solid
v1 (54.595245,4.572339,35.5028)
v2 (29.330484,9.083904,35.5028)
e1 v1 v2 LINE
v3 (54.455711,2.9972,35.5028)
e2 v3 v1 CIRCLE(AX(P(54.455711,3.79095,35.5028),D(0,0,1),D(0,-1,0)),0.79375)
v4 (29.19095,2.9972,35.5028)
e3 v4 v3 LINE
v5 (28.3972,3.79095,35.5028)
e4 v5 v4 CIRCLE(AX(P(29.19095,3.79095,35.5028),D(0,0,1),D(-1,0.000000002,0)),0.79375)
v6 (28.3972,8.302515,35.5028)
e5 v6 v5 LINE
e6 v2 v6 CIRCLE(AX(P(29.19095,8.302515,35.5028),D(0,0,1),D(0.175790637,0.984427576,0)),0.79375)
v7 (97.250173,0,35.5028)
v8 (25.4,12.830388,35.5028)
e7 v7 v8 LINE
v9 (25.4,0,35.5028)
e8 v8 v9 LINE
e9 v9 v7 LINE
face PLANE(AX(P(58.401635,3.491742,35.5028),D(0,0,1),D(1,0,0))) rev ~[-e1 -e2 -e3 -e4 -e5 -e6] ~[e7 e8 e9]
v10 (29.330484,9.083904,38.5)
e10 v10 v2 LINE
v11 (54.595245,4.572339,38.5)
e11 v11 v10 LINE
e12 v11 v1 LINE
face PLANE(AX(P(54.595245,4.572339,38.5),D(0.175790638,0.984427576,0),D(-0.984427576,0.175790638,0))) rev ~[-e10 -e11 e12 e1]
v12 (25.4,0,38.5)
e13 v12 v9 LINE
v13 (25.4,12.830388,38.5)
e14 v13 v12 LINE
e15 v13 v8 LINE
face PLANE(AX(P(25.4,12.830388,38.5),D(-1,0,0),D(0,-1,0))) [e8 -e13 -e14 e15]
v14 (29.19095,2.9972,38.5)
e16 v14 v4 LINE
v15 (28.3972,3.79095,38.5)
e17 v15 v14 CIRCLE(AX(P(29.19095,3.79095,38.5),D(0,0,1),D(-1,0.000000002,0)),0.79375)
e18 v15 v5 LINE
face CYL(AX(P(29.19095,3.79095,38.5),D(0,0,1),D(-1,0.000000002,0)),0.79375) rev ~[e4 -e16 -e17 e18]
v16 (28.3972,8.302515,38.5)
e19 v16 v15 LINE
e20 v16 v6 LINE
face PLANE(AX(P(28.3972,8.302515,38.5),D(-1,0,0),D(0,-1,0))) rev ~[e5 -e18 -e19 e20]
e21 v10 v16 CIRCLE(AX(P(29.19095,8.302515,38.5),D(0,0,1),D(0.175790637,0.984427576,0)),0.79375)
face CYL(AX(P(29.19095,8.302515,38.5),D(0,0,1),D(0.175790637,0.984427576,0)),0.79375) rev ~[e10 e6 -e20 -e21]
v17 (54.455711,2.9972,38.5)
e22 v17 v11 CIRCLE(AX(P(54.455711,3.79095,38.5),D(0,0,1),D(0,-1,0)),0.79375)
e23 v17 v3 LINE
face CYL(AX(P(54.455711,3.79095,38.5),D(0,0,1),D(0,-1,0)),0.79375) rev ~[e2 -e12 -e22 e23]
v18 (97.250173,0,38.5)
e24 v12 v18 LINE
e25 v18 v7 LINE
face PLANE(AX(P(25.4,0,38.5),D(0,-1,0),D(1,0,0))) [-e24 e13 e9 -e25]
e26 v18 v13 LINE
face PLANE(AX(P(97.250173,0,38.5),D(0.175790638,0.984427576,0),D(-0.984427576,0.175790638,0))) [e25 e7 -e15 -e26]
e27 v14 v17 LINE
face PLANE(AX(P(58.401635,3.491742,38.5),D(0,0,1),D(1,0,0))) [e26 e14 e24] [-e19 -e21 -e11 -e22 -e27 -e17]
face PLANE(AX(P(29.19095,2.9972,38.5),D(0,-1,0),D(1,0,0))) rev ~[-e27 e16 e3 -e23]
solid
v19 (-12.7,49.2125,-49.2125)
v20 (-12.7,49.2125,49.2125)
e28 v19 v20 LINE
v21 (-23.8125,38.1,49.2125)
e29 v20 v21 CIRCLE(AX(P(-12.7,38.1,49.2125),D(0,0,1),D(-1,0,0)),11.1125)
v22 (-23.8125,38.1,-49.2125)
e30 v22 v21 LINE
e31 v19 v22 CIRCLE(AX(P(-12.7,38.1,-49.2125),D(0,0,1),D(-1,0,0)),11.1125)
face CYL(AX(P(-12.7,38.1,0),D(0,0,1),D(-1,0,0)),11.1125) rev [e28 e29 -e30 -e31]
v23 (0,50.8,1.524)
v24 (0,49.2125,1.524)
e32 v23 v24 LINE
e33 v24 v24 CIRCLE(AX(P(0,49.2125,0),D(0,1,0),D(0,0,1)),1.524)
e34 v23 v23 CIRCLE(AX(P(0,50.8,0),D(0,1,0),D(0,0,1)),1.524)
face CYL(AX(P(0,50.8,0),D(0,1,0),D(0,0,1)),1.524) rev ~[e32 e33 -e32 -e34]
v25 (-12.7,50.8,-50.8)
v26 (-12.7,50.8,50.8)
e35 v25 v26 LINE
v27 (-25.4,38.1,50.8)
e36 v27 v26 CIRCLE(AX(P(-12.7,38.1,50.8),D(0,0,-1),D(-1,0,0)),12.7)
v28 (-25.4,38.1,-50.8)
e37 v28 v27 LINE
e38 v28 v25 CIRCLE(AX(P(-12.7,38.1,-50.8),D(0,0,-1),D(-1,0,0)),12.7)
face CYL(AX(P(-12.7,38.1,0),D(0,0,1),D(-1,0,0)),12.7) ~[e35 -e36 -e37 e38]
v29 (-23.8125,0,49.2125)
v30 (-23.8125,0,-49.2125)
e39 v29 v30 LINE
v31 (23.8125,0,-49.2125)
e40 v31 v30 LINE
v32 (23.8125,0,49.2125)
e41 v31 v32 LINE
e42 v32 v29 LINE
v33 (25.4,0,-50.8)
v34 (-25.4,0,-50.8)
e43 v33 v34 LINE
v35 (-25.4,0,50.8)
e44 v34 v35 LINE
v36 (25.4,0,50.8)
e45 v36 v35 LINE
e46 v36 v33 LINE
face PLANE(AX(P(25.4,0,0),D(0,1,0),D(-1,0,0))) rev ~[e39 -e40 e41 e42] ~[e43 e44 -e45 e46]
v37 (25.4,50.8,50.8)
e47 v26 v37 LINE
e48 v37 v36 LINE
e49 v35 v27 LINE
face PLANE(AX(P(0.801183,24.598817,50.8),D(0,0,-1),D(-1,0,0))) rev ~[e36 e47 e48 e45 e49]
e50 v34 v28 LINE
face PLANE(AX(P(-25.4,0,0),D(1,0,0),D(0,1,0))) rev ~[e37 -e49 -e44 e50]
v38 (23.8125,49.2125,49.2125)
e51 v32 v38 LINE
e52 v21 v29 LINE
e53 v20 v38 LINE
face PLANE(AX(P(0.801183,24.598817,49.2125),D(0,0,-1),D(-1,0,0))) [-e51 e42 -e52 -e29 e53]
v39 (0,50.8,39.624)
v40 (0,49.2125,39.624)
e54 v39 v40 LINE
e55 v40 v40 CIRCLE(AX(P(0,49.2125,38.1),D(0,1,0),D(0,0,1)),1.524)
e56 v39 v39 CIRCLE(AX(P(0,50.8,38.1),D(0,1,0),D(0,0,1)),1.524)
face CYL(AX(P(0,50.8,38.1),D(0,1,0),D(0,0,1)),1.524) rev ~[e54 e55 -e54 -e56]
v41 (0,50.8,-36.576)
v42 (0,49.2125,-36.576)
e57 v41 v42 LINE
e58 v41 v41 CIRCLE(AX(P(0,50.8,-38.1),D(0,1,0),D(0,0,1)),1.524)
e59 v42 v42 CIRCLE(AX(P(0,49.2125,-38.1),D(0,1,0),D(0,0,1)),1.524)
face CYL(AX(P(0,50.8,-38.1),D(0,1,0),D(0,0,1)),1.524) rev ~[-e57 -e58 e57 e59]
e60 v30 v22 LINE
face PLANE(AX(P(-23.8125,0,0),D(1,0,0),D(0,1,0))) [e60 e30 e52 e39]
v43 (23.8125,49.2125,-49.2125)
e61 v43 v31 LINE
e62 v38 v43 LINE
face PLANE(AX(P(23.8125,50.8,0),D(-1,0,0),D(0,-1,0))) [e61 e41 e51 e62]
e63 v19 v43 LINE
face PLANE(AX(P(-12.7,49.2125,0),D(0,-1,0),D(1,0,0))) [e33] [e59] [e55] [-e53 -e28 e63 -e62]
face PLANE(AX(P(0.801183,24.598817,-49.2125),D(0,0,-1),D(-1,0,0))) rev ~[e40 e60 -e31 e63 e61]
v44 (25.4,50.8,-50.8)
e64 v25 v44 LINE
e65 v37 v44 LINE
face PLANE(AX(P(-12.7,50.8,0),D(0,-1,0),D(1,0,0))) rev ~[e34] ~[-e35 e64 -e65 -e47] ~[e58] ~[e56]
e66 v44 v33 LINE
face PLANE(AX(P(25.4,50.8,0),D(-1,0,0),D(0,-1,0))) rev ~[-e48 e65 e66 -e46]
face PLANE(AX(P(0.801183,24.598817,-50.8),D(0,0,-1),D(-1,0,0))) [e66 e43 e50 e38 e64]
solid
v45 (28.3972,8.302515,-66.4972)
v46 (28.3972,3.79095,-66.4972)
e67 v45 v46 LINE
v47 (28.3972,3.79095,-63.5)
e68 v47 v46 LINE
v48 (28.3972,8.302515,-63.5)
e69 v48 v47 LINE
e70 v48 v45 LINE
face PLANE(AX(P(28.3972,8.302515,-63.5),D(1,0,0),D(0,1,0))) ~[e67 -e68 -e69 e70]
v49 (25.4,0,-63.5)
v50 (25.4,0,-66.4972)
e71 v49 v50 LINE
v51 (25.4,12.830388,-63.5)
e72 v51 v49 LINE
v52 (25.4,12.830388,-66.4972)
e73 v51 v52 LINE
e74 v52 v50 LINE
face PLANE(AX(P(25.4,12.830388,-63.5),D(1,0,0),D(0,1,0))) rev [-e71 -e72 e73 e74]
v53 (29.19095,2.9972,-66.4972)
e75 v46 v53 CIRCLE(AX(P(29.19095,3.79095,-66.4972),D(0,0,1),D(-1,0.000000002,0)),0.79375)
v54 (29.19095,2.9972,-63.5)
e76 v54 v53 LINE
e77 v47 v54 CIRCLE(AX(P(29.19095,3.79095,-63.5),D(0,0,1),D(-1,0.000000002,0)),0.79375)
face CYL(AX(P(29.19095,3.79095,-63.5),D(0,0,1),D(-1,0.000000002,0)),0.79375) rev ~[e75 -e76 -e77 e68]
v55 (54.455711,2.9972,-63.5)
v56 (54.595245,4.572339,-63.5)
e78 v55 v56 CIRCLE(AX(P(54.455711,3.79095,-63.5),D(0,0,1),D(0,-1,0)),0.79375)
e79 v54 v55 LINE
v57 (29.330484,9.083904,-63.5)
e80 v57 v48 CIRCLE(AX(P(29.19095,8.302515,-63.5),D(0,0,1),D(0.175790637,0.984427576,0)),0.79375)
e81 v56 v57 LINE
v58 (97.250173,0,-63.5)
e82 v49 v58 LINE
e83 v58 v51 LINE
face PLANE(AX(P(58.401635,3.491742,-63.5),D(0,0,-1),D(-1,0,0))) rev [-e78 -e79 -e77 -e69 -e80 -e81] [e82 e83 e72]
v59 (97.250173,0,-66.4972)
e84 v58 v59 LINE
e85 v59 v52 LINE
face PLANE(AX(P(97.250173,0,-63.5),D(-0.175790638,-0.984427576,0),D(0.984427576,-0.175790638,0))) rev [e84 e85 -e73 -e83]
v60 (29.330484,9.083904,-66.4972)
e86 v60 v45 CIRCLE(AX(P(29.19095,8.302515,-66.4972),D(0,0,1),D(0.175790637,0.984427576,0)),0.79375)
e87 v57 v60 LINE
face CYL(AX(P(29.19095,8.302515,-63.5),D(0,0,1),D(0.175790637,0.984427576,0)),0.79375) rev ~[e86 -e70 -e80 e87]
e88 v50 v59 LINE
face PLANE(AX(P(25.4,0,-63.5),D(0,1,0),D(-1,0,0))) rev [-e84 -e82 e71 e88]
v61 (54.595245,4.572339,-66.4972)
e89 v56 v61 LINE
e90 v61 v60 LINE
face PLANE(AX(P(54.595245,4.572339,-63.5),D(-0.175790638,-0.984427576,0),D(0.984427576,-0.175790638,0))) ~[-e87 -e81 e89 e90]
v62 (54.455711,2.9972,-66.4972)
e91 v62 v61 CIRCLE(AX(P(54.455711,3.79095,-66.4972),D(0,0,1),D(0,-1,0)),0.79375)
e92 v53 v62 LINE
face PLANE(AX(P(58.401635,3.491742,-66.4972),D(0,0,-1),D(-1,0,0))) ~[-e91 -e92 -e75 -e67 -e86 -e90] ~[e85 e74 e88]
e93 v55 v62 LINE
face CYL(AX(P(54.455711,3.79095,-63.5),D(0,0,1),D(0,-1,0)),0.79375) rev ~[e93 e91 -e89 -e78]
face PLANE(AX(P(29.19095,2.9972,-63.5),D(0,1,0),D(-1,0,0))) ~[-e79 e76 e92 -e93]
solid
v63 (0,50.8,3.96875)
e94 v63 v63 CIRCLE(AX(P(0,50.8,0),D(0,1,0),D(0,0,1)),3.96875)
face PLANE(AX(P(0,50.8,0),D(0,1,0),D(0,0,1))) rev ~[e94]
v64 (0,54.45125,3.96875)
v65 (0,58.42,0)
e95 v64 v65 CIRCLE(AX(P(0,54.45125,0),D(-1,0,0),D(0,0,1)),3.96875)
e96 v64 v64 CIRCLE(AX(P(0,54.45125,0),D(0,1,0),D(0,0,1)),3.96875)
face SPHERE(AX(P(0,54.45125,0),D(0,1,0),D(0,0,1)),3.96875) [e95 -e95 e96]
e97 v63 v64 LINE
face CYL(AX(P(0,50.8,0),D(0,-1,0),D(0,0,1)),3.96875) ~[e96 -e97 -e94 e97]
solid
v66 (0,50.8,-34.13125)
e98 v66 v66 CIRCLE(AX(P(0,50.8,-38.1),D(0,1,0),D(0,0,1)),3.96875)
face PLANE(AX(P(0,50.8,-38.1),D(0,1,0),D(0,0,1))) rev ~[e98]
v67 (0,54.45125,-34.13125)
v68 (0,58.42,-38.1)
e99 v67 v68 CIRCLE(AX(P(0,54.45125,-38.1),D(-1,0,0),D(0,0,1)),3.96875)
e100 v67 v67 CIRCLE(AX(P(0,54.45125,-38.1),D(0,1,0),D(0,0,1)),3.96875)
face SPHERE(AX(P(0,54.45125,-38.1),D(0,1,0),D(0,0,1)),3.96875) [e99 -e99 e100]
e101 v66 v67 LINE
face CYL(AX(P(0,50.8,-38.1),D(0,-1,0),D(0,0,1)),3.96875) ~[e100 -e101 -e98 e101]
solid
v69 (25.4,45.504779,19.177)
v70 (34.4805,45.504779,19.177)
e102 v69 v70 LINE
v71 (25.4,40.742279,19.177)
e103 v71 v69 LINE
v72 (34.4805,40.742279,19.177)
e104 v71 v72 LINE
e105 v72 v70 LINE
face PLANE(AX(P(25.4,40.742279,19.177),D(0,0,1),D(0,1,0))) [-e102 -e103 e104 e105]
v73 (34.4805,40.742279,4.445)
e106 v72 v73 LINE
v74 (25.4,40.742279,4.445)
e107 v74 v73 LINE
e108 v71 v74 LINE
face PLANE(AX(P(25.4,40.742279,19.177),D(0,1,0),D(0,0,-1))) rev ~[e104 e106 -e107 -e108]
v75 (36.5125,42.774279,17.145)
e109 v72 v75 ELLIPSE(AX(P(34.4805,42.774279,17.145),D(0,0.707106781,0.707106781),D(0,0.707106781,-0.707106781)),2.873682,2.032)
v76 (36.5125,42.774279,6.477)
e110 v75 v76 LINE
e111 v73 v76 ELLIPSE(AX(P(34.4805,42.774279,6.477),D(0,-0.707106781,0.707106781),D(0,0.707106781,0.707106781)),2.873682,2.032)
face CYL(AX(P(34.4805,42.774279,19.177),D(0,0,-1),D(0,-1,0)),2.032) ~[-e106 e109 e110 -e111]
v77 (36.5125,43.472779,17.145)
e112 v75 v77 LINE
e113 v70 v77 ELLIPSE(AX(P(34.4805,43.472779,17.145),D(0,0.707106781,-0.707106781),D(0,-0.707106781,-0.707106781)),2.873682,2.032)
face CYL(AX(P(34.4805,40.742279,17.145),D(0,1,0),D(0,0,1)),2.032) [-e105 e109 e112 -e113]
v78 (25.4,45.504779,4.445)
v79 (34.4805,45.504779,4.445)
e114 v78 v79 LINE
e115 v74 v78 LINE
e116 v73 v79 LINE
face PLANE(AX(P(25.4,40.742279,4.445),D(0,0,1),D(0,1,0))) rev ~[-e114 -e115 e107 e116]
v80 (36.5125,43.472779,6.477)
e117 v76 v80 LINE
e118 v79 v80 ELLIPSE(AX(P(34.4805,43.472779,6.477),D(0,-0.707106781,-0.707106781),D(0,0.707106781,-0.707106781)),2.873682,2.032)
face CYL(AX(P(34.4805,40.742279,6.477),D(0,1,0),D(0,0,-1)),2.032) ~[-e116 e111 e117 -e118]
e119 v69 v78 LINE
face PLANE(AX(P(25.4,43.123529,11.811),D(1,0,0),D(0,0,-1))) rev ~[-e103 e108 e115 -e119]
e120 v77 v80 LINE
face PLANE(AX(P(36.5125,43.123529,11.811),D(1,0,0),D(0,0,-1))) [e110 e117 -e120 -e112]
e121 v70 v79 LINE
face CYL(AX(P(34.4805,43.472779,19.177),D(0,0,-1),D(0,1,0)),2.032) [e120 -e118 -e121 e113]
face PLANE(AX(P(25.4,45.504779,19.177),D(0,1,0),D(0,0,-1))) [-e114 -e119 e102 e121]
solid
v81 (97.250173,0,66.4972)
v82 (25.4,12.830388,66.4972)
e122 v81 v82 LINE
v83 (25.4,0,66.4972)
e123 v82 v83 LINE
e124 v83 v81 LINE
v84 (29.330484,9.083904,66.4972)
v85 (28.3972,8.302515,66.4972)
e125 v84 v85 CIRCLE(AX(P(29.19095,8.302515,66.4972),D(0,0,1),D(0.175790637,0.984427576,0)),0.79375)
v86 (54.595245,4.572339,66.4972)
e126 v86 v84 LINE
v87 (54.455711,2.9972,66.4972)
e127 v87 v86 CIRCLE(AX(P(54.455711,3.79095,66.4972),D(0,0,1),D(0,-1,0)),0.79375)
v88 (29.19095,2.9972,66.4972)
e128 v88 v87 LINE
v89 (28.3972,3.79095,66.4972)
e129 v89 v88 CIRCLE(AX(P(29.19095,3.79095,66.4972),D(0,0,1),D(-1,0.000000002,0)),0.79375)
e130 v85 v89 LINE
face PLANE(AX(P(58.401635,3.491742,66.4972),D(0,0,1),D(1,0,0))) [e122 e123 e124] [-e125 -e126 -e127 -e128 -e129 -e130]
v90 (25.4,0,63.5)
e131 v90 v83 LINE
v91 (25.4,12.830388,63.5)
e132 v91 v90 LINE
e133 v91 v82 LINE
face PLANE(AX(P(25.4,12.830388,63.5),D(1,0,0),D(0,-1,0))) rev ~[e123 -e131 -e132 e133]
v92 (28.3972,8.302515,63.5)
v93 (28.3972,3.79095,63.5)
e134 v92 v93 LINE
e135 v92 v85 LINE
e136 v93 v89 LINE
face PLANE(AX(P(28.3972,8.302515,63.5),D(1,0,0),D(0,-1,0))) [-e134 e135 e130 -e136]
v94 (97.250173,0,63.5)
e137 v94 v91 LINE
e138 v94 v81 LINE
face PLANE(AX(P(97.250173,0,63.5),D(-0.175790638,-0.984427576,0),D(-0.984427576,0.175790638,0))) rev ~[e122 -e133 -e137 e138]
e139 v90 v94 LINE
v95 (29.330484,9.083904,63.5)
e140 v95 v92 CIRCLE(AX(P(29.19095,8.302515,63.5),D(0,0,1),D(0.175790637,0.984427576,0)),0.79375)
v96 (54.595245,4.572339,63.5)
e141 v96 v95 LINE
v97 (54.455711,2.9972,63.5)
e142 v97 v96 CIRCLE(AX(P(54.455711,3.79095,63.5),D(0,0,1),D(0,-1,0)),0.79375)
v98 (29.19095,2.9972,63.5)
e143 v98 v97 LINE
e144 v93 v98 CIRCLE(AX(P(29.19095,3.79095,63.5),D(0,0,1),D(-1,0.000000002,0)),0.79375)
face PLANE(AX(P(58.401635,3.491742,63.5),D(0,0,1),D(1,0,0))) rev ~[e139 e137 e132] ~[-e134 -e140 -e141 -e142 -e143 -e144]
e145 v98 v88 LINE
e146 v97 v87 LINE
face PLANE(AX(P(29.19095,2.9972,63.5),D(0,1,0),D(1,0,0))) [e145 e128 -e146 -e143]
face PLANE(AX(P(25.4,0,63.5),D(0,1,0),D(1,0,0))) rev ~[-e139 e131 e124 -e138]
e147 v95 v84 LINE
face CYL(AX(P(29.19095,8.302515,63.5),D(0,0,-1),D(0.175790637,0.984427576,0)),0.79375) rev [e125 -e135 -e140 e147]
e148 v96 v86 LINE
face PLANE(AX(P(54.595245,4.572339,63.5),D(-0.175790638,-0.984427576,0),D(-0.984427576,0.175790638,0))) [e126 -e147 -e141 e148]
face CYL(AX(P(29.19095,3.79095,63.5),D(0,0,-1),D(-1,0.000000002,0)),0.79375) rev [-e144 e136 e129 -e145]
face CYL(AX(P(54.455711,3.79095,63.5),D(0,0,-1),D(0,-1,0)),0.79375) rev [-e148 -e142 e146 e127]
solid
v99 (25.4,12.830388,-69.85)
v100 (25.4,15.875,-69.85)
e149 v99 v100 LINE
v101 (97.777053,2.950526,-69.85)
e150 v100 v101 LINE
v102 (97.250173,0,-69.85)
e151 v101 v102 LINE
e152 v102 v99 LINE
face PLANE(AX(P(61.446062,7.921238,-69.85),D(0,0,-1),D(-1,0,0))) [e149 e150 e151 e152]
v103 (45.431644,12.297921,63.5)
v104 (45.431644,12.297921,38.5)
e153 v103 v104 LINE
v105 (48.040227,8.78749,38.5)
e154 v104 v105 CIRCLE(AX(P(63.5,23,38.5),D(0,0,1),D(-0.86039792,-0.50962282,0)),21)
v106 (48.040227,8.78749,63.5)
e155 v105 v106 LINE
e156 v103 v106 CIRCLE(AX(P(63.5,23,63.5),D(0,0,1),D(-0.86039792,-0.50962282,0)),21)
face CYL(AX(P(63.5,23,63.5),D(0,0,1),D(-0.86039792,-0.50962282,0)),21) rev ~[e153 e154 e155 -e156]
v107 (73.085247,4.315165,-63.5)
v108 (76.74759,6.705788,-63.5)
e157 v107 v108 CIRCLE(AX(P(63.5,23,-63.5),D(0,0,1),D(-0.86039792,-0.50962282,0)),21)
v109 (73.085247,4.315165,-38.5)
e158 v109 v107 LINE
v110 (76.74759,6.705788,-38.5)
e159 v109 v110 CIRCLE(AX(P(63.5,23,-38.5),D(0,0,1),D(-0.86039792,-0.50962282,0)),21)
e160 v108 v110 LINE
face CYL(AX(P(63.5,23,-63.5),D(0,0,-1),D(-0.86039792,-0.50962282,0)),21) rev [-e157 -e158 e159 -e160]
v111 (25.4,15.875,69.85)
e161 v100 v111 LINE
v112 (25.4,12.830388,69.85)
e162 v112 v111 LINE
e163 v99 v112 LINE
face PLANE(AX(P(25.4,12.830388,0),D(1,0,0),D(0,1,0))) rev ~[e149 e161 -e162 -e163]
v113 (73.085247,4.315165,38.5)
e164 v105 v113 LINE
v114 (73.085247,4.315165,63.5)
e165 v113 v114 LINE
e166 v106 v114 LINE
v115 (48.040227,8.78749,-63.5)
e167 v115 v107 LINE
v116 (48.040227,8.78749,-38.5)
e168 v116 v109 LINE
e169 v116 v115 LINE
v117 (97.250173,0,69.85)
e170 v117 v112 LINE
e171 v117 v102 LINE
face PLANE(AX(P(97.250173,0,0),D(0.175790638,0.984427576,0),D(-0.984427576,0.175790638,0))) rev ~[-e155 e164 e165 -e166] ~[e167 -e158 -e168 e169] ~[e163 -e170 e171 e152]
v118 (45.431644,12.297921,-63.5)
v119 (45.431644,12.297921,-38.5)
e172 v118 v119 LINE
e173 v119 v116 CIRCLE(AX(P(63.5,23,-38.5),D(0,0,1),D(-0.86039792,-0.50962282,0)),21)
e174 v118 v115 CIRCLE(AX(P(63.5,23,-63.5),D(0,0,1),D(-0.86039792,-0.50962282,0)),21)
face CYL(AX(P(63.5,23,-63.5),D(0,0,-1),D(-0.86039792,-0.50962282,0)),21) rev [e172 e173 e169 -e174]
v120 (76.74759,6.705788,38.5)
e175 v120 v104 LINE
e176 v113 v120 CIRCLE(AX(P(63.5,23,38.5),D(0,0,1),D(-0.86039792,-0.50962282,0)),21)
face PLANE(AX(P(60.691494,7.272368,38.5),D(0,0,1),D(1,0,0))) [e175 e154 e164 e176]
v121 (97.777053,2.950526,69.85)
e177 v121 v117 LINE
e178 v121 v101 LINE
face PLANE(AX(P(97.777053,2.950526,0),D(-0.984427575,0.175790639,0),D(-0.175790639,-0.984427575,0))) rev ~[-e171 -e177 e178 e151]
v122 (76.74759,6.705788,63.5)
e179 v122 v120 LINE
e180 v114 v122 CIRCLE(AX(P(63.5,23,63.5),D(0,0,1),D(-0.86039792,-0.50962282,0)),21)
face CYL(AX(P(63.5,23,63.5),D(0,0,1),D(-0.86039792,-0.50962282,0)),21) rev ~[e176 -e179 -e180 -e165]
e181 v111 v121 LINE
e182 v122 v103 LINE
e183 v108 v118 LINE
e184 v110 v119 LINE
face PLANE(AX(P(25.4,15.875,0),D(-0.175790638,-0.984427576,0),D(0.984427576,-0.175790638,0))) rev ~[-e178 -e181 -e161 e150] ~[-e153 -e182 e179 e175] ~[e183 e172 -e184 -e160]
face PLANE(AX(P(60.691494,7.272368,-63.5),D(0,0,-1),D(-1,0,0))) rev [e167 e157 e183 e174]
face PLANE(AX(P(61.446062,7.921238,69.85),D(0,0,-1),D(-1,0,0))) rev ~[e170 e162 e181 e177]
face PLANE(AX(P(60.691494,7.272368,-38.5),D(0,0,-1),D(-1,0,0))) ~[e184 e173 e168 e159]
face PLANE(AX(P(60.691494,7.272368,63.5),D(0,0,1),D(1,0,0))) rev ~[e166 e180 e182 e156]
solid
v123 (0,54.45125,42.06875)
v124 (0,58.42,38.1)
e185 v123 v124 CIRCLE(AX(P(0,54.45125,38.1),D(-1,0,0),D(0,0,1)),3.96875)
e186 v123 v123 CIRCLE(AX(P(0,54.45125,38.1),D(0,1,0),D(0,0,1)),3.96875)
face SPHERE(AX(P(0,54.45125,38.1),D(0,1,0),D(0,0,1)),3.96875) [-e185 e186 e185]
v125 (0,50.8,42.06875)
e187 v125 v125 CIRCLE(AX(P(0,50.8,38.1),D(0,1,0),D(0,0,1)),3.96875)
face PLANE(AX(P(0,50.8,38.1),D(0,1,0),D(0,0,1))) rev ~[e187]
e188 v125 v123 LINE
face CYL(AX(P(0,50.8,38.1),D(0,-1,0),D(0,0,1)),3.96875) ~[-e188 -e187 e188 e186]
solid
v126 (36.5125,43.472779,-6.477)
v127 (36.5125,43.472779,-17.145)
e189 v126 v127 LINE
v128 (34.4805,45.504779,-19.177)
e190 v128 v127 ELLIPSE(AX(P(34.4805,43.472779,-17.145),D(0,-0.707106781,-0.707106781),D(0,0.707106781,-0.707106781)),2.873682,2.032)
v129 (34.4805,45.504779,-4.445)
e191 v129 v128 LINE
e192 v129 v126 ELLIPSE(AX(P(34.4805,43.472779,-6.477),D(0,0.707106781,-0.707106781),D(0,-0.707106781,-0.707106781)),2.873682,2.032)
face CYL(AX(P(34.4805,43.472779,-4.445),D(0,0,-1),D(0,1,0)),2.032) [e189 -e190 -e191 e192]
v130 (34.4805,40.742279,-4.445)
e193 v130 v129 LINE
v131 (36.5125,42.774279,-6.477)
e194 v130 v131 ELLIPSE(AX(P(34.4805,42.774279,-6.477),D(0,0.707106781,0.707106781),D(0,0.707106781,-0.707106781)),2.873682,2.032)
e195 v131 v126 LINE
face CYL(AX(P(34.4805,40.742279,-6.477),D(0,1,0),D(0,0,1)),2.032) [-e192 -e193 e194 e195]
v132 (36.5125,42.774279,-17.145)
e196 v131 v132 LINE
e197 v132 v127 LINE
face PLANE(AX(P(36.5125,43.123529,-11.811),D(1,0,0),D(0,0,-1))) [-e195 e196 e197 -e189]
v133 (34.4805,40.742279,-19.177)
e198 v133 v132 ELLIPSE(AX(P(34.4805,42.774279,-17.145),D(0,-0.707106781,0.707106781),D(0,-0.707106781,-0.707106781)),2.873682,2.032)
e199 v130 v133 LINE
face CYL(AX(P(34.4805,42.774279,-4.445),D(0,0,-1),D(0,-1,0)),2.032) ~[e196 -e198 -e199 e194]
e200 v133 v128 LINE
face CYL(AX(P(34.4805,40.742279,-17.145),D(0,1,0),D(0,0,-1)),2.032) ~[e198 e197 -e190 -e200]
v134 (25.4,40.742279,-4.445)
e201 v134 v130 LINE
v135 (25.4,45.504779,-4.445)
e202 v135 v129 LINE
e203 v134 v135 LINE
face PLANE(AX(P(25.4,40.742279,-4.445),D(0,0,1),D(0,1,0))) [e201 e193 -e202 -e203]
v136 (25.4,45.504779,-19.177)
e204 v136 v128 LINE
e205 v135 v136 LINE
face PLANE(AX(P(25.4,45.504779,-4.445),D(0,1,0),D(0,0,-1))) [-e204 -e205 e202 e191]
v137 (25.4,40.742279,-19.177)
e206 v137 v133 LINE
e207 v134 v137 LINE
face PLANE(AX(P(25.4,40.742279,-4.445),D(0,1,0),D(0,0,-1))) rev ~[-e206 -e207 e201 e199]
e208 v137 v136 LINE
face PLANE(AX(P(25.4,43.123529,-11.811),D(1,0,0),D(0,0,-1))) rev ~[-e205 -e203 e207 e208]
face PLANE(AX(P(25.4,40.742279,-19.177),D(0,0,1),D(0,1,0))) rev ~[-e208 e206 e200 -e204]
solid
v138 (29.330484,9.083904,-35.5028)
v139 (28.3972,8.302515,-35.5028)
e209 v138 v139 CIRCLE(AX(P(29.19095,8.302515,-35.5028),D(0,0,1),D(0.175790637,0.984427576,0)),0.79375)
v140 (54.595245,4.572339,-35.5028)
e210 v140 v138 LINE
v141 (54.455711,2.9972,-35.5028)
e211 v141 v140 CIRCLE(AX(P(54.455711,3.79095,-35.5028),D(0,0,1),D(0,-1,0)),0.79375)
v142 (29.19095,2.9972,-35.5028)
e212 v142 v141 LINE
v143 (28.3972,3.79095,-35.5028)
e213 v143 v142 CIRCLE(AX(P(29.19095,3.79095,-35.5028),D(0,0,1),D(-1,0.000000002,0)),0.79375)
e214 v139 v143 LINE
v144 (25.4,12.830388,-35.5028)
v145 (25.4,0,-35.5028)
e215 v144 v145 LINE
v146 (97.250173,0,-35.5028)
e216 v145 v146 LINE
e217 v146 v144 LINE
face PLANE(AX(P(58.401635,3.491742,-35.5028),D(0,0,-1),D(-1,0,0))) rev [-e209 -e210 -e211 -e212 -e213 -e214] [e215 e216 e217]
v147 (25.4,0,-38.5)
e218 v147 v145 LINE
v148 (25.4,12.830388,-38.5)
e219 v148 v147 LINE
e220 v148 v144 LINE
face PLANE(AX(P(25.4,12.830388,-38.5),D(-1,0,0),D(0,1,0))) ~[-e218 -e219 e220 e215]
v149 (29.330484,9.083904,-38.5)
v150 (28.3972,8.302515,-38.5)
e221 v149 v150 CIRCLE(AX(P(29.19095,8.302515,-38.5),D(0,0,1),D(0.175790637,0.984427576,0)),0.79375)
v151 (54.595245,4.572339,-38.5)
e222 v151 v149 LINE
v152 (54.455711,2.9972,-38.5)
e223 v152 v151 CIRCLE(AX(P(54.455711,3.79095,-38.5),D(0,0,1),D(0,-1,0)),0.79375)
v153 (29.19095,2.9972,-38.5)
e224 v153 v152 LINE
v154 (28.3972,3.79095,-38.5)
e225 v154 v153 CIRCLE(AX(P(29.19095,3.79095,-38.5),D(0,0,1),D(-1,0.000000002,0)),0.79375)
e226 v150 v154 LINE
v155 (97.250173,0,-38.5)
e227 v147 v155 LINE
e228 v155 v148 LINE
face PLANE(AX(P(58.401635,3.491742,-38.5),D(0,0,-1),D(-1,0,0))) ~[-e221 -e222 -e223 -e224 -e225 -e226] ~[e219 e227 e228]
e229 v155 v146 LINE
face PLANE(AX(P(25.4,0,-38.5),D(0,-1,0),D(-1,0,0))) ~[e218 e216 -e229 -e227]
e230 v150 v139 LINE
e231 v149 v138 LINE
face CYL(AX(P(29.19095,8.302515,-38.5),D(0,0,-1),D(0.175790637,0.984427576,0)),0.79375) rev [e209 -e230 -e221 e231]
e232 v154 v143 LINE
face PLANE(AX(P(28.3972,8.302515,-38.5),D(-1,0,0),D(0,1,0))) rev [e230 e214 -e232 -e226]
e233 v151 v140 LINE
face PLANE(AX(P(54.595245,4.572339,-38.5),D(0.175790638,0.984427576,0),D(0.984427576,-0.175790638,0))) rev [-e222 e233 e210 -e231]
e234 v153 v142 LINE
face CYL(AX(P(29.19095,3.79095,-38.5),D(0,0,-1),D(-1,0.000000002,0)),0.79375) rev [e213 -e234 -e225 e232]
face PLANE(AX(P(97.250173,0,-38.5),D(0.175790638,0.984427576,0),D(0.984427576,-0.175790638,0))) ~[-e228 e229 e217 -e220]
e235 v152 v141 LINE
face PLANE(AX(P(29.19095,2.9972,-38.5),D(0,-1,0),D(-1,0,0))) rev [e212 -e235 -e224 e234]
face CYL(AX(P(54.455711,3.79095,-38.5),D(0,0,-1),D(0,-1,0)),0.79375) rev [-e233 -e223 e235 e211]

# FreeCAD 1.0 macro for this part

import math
import FreeCAD as App
import Part
import Sketcher
Q = App.Units.Quantity


def edges_at(feature, points):
    """Names of the edges that pass closest to the given points."""
    edges = feature.Shape.Edges
    near = lambda p: min(range(len(edges)), key=lambda i: edges[i].distToShape(Part.Vertex(*p))[0])
    return sorted({f"Edge{near(p) + 1}" for p in points})


def faces_at(feature, points):
    """Names of the faces that lie closest to the given points."""
    faces = feature.Shape.Faces
    near = lambda p: min(range(len(faces)), key=lambda i: faces[i].distToShape(Part.Vertex(*p))[0])
    return sorted({f"Face{near(p) + 1}" for p in points})

doc = App.newDocument("Part")
body = doc.addObject("PartDesign::Body", "Body")

sketch1 = doc.addObject("Sketcher::SketchObject", "Sketch")
body.addObject(sketch1)
sketch1.AttachmentSupport = (doc.XY_Plane, [""])
sketch1.MapMode = "FlatFace"
sketch1.addGeometry(Part.LineSegment(App.Vector(25, 51, 0), App.Vector(-13, 51, 0)), False)
sketch1.addGeometry(Part.ArcOfCircle(Part.Circle(App.Vector(-13, 38, 0), App.Vector(0, 0, 1), 13), math.radians(90), math.radians(180)), False)
sketch1.addGeometry(Part.LineSegment(App.Vector(-25, 38, 0), App.Vector(-25, 0, 0)), False)
sketch1.addGeometry(Part.LineSegment(App.Vector(-25, 0, 0), App.Vector(25, 0, 0)), False)
sketch1.addGeometry(Part.LineSegment(App.Vector(25, 0, 0), App.Vector(25, 51, 0)), False)
sketch1.addConstraint(Sketcher.Constraint("Tangent", 0, 2, 1, 1))
sketch1.addConstraint(Sketcher.Constraint("Tangent", 1, 2, 2, 1))
sketch1.addConstraint(Sketcher.Constraint("Coincident", 2, 2, 3, 1))
sketch1.addConstraint(Sketcher.Constraint("Coincident", 3, 2, 4, 1))
sketch1.addConstraint(Sketcher.Constraint("Coincident", 4, 2, 0, 1))
sketch1.addConstraint(Sketcher.Constraint("Horizontal", 0))
sketch1.addConstraint(Sketcher.Constraint("Vertical", 2))
sketch1.addConstraint(Sketcher.Constraint("Horizontal", 3))
sketch1.addConstraint(Sketcher.Constraint("Vertical", 4))
sketch1.addConstraint(Sketcher.Constraint("Symmetric", 2, 2, 3, 2, -1, 1))
sketch1.addConstraint(Sketcher.Constraint("Equal", 0, 2))
sketch1.addConstraint(Sketcher.Constraint("Radius", 1, Q("0.5 in")))
sketch1.addConstraint(Sketcher.Constraint("DistanceX", 3, 1, 3, 2, Q("2 in")))
pad1 = doc.addObject("PartDesign::Pad", "Pad")
body.addObject(pad1)
pad1.Profile = sketch1
pad1.Length = Q("4 in")
pad1.Midplane = True
doc.recompute()

thickness = doc.addObject("PartDesign::Thickness", "Thickness")
body.addObject(thickness)
thickness.Base = (pad1, faces_at(pad1, [(0, 0, 0)]))
thickness.Value = Q("0.0625 in")
thickness.Reversed = True
thickness.Join = "Intersection"

sketch2 = doc.addObject("Sketcher::SketchObject", "Sketch001")
body.addObject(sketch2)
sketch2.AttachmentSupport = (doc.XZ_Plane, [""])
sketch2.MapMode = "FlatFace"
sketch2.AttachmentOffset = App.Placement(App.Vector(0, 0, -2 * 25.4), App.Rotation())
sketch2.addGeometry(Part.Circle(App.Vector(0, 0, 0), App.Vector(0, 0, 1), 1.5), False)
sketch2.addConstraint(Sketcher.Constraint("Coincident", 0, 3, -1, 1))
sketch2.addConstraint(Sketcher.Constraint("Diameter", 0, Q("0.12 in")))
pocket1 = doc.addObject("PartDesign::Pocket", "Pocket")
body.addObject(pocket1)
pocket1.Profile = sketch2
pocket1.Type = "UpToFirst"
pocket1.Reversed = True

sketch3 = doc.addObject("Sketcher::SketchObject", "Sketch002")
body.addObject(sketch3)
sketch3.AttachmentSupport = (doc.XZ_Plane, [""])
sketch3.MapMode = "FlatFace"
sketch3.AttachmentOffset = App.Placement(App.Vector(0, 0, -2 * 25.4), App.Rotation())
sketch3.addGeometry(Part.Circle(App.Vector(0, -38.1, 0), App.Vector(0, 0, 1), 1.5), False)
sketch3.addConstraint(Sketcher.Constraint("PointOnObject", 0, 3, -2))
sketch3.addConstraint(Sketcher.Constraint("Diameter", 0, Q("0.12 in")))
sketch3.addConstraint(Sketcher.Constraint("DistanceY", 0, 3, -1, 1, Q("1.5 in")))
pocket2 = doc.addObject("PartDesign::Pocket", "Pocket001")
body.addObject(pocket2)
pocket2.Profile = sketch3
pocket2.Type = "UpToFirst"
pocket2.Reversed = True

sketch4 = doc.addObject("Sketcher::SketchObject", "Sketch003")
body.addObject(sketch4)
sketch4.AttachmentSupport = (doc.XZ_Plane, [""])
sketch4.MapMode = "FlatFace"
sketch4.AttachmentOffset = App.Placement(App.Vector(0, 0, -2 * 25.4), App.Rotation())
sketch4.addGeometry(Part.Circle(App.Vector(0, 38.1, 0), App.Vector(0, 0, 1), 1.5), False)
sketch4.addConstraint(Sketcher.Constraint("PointOnObject", 0, 3, -2))
sketch4.addConstraint(Sketcher.Constraint("Diameter", 0, Q("0.12 in")))
sketch4.addConstraint(Sketcher.Constraint("DistanceY", -1, 1, 0, 3, Q("1.5 in")))
pocket3 = doc.addObject("PartDesign::Pocket", "Pocket002")
body.addObject(pocket3)
pocket3.Profile = sketch4
pocket3.Type = "UpToFirst"
pocket3.Reversed = True
body2 = doc.addObject("PartDesign::Body", "Body001")

sketch5 = doc.addObject("Sketcher::SketchObject", "Sketch004")
body2.addObject(sketch5)
sketch5.AttachmentSupport = (doc.getObject("XY_Plane001"), [""])
sketch5.MapMode = "FlatFace"
sketch5.addGeometry(Part.LineSegment(App.Vector(97.777053, 2.950526, 0), App.Vector(25.4, 15.875, 0)), False)
sketch5.addGeometry(Part.LineSegment(App.Vector(25.4, 15.875, 0), App.Vector(25.4, 12.830388, 0)), False)
sketch5.addGeometry(Part.LineSegment(App.Vector(25.4, 12.830388, 0), App.Vector(97.250173, 0, 0)), False)
sketch5.addGeometry(Part.LineSegment(App.Vector(97.250173, 0, 0), App.Vector(97.777053, 2.950526, 0)), False)
sketch5.addConstraint(Sketcher.Constraint("Coincident", 0, 2, 1, 1))
sketch5.addConstraint(Sketcher.Constraint("Coincident", 1, 2, 2, 1))
sketch5.addConstraint(Sketcher.Constraint("Coincident", 2, 2, 3, 1))
sketch5.addConstraint(Sketcher.Constraint("Coincident", 3, 2, 0, 1))
sketch5.addConstraint(Sketcher.Constraint("Vertical", 1))
sketch5.addConstraint(Sketcher.Constraint("PointOnObject", 2, 2, -1))
sketch5.addConstraint(Sketcher.Constraint("DistanceX", -1, 1, 0, 2, Q("1 in")))
sketch5.addConstraint(Sketcher.Constraint("Distance", 3, Q("0.118 in")))
sketch5.addConstraint(Sketcher.Constraint("DistanceY", -1, 1, 0, 2, Q("0.625 in")))
sketch5.addConstraint(Sketcher.Constraint("DistanceY", 1, 2, 1, 1, 3.044612))
sketch5.addConstraint(Sketcher.Constraint("DistanceX", 2, 2, 3, 2, 0.52688))
sketch5.addConstraint(Sketcher.Constraint("Distance", 0, 73.521968))
pad2 = doc.addObject("PartDesign::Pad", "Pad001")
body2.addObject(pad2)
pad2.Profile = sketch5
pad2.Length = Q("5.5 in")
pad2.Midplane = True

sketch6 = doc.addObject("Sketcher::SketchObject", "Sketch005")
body2.addObject(sketch6)
sketch6.AttachmentSupport = (doc.getObject("XY_Plane001"), [""])
sketch6.MapMode = "FlatFace"
sketch6.AttachmentOffset = App.Placement(App.Vector(0, 0, 2.5 * 25.4), App.Rotation())
sketch6.addGeometry(Part.LineSegment(App.Vector(77, 7, 0), App.Vector(45, 12, 0)), False)
sketch6.addGeometry(Part.ArcOfCircle(Part.Circle(App.Vector(64, 23, 0), App.Vector(0, 0, 1), 21), math.radians(-149), math.radians(-51)), False)
sketch6.addConstraint(Sketcher.Constraint("Coincident", 0, 1, 1, 2))
sketch6.addConstraint(Sketcher.Constraint("Coincident", 1, 1, 0, 2))
sketch6.addConstraint(Sketcher.Constraint("DistanceX", -1, 1, 1, 3, Q("2.5 in")))
sketch6.addConstraint(Sketcher.Constraint("Radius", 1, 21.0))
sketch6.addConstraint(Sketcher.Constraint("DistanceY", -1, 1, 1, 3, 23.0))
sketch6.addConstraint(Sketcher.Constraint("DistanceX", -1, 1, 0, 1, 76.74759))
sketch6.addConstraint(Sketcher.Constraint("DistanceY", -1, 1, 1, 1, 12.297921))
pocket4 = doc.addObject("PartDesign::Pocket", "Pocket003")
body2.addObject(pocket4)
pocket4.Profile = sketch6
pocket4.Length = 25
doc.recompute()

mirrored = doc.addObject("PartDesign::Mirrored", "Mirrored")
body2.addObject(mirrored)
mirrored.Originals = [pocket4]
mirrored.MirrorPlane = (doc.getObject("XY_Plane001"), [""])
body2.Tip = mirrored
body3 = doc.addObject("PartDesign::Body", "Body002")

sketch7 = doc.addObject("Sketcher::SketchObject", "Sketch006")
body3.addObject(sketch7)
sketch7.AttachmentSupport = (doc.getObject("YZ_Plane002"), [""])
sketch7.MapMode = "FlatFace"
sketch7.AttachmentOffset = App.Placement(App.Vector(0, 0, 1 * 25.4), App.Rotation())
sketch7.addGeometry(Part.LineSegment(App.Vector(45.5, 19.2, 0), App.Vector(40.7, 19.2, 0)), False)
sketch7.addGeometry(Part.LineSegment(App.Vector(40.7, 19.2, 0), App.Vector(40.7, 4.4, 0)), False)
sketch7.addGeometry(Part.LineSegment(App.Vector(40.7, 4.4, 0), App.Vector(45.5, 4.4, 0)), False)
sketch7.addGeometry(Part.LineSegment(App.Vector(45.5, 4.4, 0), App.Vector(45.5, 19.2, 0)), False)
sketch7.addConstraint(Sketcher.Constraint("Coincident", 0, 2, 1, 1))
sketch7.addConstraint(Sketcher.Constraint("Coincident", 1, 2, 2, 1))
sketch7.addConstraint(Sketcher.Constraint("Coincident", 2, 2, 3, 1))
sketch7.addConstraint(Sketcher.Constraint("Coincident", 3, 2, 0, 1))
sketch7.addConstraint(Sketcher.Constraint("Horizontal", 0))
sketch7.addConstraint(Sketcher.Constraint("Vertical", 1))
sketch7.addConstraint(Sketcher.Constraint("Horizontal", 2))
sketch7.addConstraint(Sketcher.Constraint("Vertical", 3))
sketch7.addConstraint(Sketcher.Constraint("DistanceY", 1, 2, 1, 1, Q("0.58 in")))
sketch7.addConstraint(Sketcher.Constraint("DistanceX", 0, 2, 0, 1, Q("0.1875 in")))
sketch7.addConstraint(Sketcher.Constraint("DistanceY", -1, 1, 0, 2, Q("0.755 in")))
sketch7.addConstraint(Sketcher.Constraint("DistanceX", -1, 1, 0, 2, 40.742279))
pad3 = doc.addObject("PartDesign::Pad", "Pad002")
body3.addObject(pad3)
pad3.Profile = sketch7
pad3.Length = Q("0.4375 in")
doc.recompute()

fillet = doc.addObject("PartDesign::Fillet", "Fillet")
body3.addObject(fillet)
fillet.Base = (pad3, edges_at(pad3, [
    (36.513, 43.124, 4.445),
    (36.513, 45.505, 11.811),
    (36.513, 43.124, 19.177),
    (36.513, 40.742, 11.811),
]))
fillet.Radius = Q("0.08 in")
body4 = doc.addObject("PartDesign::Body", "Body003")

sketch8 = doc.addObject("Sketcher::SketchObject", "Sketch007")
body4.addObject(sketch8)
sketch8.AttachmentSupport = (doc.getObject("YZ_Plane003"), [""])
sketch8.MapMode = "FlatFace"
sketch8.AttachmentOffset = App.Placement(App.Vector(0, 0, 1 * 25.4), App.Rotation())
sketch8.addGeometry(Part.LineSegment(App.Vector(45.5, -4.4, 0), App.Vector(40.7, -4.4, 0)), False)
sketch8.addGeometry(Part.LineSegment(App.Vector(40.7, -4.4, 0), App.Vector(40.7, -19.2, 0)), False)
sketch8.addGeometry(Part.LineSegment(App.Vector(40.7, -19.2, 0), App.Vector(45.5, -19.2, 0)), False)
sketch8.addGeometry(Part.LineSegment(App.Vector(45.5, -19.2, 0), App.Vector(45.5, -4.4, 0)), False)
sketch8.addConstraint(Sketcher.Constraint("Coincident", 0, 2, 1, 1))
sketch8.addConstraint(Sketcher.Constraint("Coincident", 1, 2, 2, 1))
sketch8.addConstraint(Sketcher.Constraint("Coincident", 2, 2, 3, 1))
sketch8.addConstraint(Sketcher.Constraint("Coincident", 3, 2, 0, 1))
sketch8.addConstraint(Sketcher.Constraint("Horizontal", 0))
sketch8.addConstraint(Sketcher.Constraint("Vertical", 1))
sketch8.addConstraint(Sketcher.Constraint("Horizontal", 2))
sketch8.addConstraint(Sketcher.Constraint("Vertical", 3))
sketch8.addConstraint(Sketcher.Constraint("DistanceY", 1, 2, 1, 1, Q("0.58 in")))
sketch8.addConstraint(Sketcher.Constraint("DistanceX", 0, 2, 0, 1, Q("0.1875 in")))
sketch8.addConstraint(Sketcher.Constraint("DistanceY", 0, 2, -1, 1, Q("0.175 in")))
sketch8.addConstraint(Sketcher.Constraint("DistanceX", -1, 1, 0, 2, 40.742279))
pad4 = doc.addObject("PartDesign::Pad", "Pad003")
body4.addObject(pad4)
pad4.Profile = sketch8
pad4.Length = Q("0.4375 in")
doc.recompute()

fillet2 = doc.addObject("PartDesign::Fillet", "Fillet001")
body4.addObject(fillet2)
fillet2.Base = (pad4, edges_at(pad4, [
    (36.513, 40.742, -11.811),
    (36.513, 43.124, -19.177),
    (36.513, 45.505, -11.811),
    (36.513, 43.124, -4.445),
]))
fillet2.Radius = Q("0.08 in")
body5 = doc.addObject("PartDesign::Body", "Body004")

sketch9 = doc.addObject("Sketcher::SketchObject", "Sketch008")
body5.addObject(sketch9)
sketch9.AttachmentSupport = (doc.getObject("XZ_Plane004"), [""])
sketch9.MapMode = "FlatFace"
sketch9.AttachmentOffset = App.Placement(App.Vector(0, 0, -2 * 25.4), App.Rotation())
sketch9.addGeometry(Part.Circle(App.Vector(0, -38.1, 0), App.Vector(0, 0, 1), 4), False)
sketch9.addConstraint(Sketcher.Constraint("PointOnObject", 0, 3, -2))
sketch9.addConstraint(Sketcher.Constraint("Diameter", 0, Q("0.3125 in")))
sketch9.addConstraint(Sketcher.Constraint("DistanceY", 0, 3, -1, 1, Q("1.5 in")))
pad5 = doc.addObject("PartDesign::Pad", "Pad004")
body5.addObject(pad5)
pad5.Profile = sketch9
pad5.Length = Q("0.3 in")
pad5.Reversed = True
doc.recompute()

fillet3 = doc.addObject("PartDesign::Fillet", "Fillet002")
body5.addObject(fillet3)
fillet3.Base = (pad5, edges_at(pad5, [(0, 58.42, -42.069)]))
fillet3.Radius = Q("0.15625 in")
body6 = doc.addObject("PartDesign::Body", "Body005")

sketch10 = doc.addObject("Sketcher::SketchObject", "Sketch009")
body6.addObject(sketch10)
sketch10.AttachmentSupport = (doc.getObject("XZ_Plane005"), [""])
sketch10.MapMode = "FlatFace"
sketch10.AttachmentOffset = App.Placement(App.Vector(0, 0, -2 * 25.4), App.Rotation())
sketch10.addGeometry(Part.Circle(App.Vector(0, 0, 0), App.Vector(0, 0, 1), 4), False)
sketch10.addConstraint(Sketcher.Constraint("Coincident", 0, 3, -1, 1))
sketch10.addConstraint(Sketcher.Constraint("Diameter", 0, Q("0.3125 in")))
pad6 = doc.addObject("PartDesign::Pad", "Pad005")
body6.addObject(pad6)
pad6.Profile = sketch10
pad6.Length = Q("0.3 in")
pad6.Reversed = True
doc.recompute()

fillet4 = doc.addObject("PartDesign::Fillet", "Fillet003")
body6.addObject(fillet4)
fillet4.Base = (pad6, edges_at(pad6, [(0, 58.42, -3.969)]))
fillet4.Radius = Q("0.15625 in")
body7 = doc.addObject("PartDesign::Body", "Body006")

sketch11 = doc.addObject("Sketcher::SketchObject", "Sketch010")
body7.addObject(sketch11)
sketch11.AttachmentSupport = (doc.getObject("XZ_Plane006"), [""])
sketch11.MapMode = "FlatFace"
sketch11.AttachmentOffset = App.Placement(App.Vector(0, 0, -2 * 25.4), App.Rotation())
sketch11.addGeometry(Part.Circle(App.Vector(0, 38.1, 0), App.Vector(0, 0, 1), 4), False)
sketch11.addConstraint(Sketcher.Constraint("PointOnObject", 0, 3, -2))
sketch11.addConstraint(Sketcher.Constraint("Diameter", 0, Q("0.3125 in")))
sketch11.addConstraint(Sketcher.Constraint("DistanceY", -1, 1, 0, 3, Q("1.5 in")))
pad7 = doc.addObject("PartDesign::Pad", "Pad006")
body7.addObject(pad7)
pad7.Profile = sketch11
pad7.Length = Q("0.3 in")
pad7.Reversed = True
doc.recompute()

fillet5 = doc.addObject("PartDesign::Fillet", "Fillet004")
body7.addObject(fillet5)
fillet5.Base = (pad7, edges_at(pad7, [(0, 58.42, 34.131)]))
fillet5.Radius = Q("0.15625 in")
body8 = doc.addObject("PartDesign::Body", "Body007")

sketch12 = doc.addObject("Sketcher::SketchObject", "Sketch011")
body8.addObject(sketch12)
sketch12.AttachmentSupport = (doc.getObject("XY_Plane007"), [""])
sketch12.MapMode = "FlatFace"
sketch12.AttachmentOffset = App.Placement(App.Vector(0, 0, 2.5 * 25.4), App.Rotation())
sketch12.addGeometry(Part.LineSegment(App.Vector(25.4, 12.830388, 0), App.Vector(25.4, 0, 0)), False)
sketch12.addGeometry(Part.LineSegment(App.Vector(25.4, 0, 0), App.Vector(97.250173, 0, 0)), False)
sketch12.addGeometry(Part.LineSegment(App.Vector(97.250173, 0, 0), App.Vector(25.4, 12.830388, 0)), False)
sketch12.addGeometry(Part.LineSegment(App.Vector(29.330484, 9.083904, 0), App.Vector(54.595245, 4.572339, 0)), False)
sketch12.addGeometry(Part.ArcOfCircle(Part.Circle(App.Vector(54.455711, 3.79095, 0), App.Vector(0, 0, 1), 0.79375), math.radians(-90), math.radians(79.875328)), False)
sketch12.addGeometry(Part.LineSegment(App.Vector(54.455711, 2.9972, 0), App.Vector(29.19095, 2.9972, 0)), False)
sketch12.addGeometry(Part.ArcOfCircle(Part.Circle(App.Vector(29.19095, 3.79095, 0), App.Vector(0, 0, 1), 0.79375), math.radians(180), math.radians(270)), False)
sketch12.addGeometry(Part.LineSegment(App.Vector(28.3972, 3.79095, 0), App.Vector(28.3972, 8.302515, 0)), False)
sketch12.addGeometry(Part.ArcOfCircle(Part.Circle(App.Vector(29.19095, 8.302515, 0), App.Vector(0, 0, 1), 0.79375), math.radians(79.875328), math.radians(180)), False)
sketch12.addConstraint(Sketcher.Constraint("Coincident", 0, 2, 1, 1))
sketch12.addConstraint(Sketcher.Constraint("Coincident", 1, 2, 2, 1))
sketch12.addConstraint(Sketcher.Constraint("Coincident", 2, 2, 0, 1))
sketch12.addConstraint(Sketcher.Constraint("Coincident", 3, 2, 4, 2))
sketch12.addConstraint(Sketcher.Constraint("Coincident", 4, 1, 5, 1))
sketch12.addConstraint(Sketcher.Constraint("Coincident", 5, 2, 6, 2))
sketch12.addConstraint(Sketcher.Constraint("Coincident", 6, 1, 7, 1))
sketch12.addConstraint(Sketcher.Constraint("Coincident", 7, 2, 8, 2))
sketch12.addConstraint(Sketcher.Constraint("Coincident", 8, 1, 3, 1))
sketch12.addConstraint(Sketcher.Constraint("Vertical", 0))
sketch12.addConstraint(Sketcher.Constraint("Horizontal", 1))
sketch12.addConstraint(Sketcher.Constraint("Horizontal", 5))
sketch12.addConstraint(Sketcher.Constraint("Vertical", 7))
sketch12.addConstraint(Sketcher.Constraint("PointOnObject", 0, 2, -1))
sketch12.addConstraint(Sketcher.Constraint("DistanceX", -1, 1, 0, 2, Q("1 in")))
sketch12.addConstraint(Sketcher.Constraint("Radius", 4, Q("0.03125 in")))
sketch12.addConstraint(Sketcher.Constraint("Radius", 6, Q("0.03125 in")))
sketch12.addConstraint(Sketcher.Constraint("Radius", 8, Q("0.03125 in")))
sketch12.addConstraint(Sketcher.Constraint("DistanceY", -1, 1, 4, 1, Q("0.118 in")))
sketch12.addConstraint(Sketcher.Constraint("DistanceX", -1, 1, 6, 1, Q("1.118 in")))
sketch12.addConstraint(Sketcher.Constraint("DistanceX", 6, 1, 5, 2, Q("0.03125 in")))
sketch12.addConstraint(Sketcher.Constraint("DistanceY", 5, 2, 6, 1, Q("0.03125 in")))
sketch12.addConstraint(Sketcher.Constraint("DistanceX", 5, 2, 5, 1, 25.264761))
sketch12.addConstraint(Sketcher.Constraint("DistanceY", 0, 2, 0, 1, 12.830388))
sketch12.addConstraint(Sketcher.Constraint("Distance", 3, 25.664419))
sketch12.addConstraint(Sketcher.Constraint("DistanceX", 1, 1, 1, 2, 71.850173))
sketch12.addConstraint(Sketcher.Constraint("DistanceY", 7, 1, 7, 2, 4.511565))
sketch12.addConstraint(Sketcher.Constraint("DistanceX", -1, 1, 4, 3, 54.455711))
sketch12.addConstraint(Sketcher.Constraint("DistanceY", -1, 1, 3, 2, 4.572339))
sketch12.addConstraint(Sketcher.Constraint("DistanceY", 8, 3, 8, 1, 0.781389))
pad8 = doc.addObject("PartDesign::Pad", "Pad007")
body8.addObject(pad8)
pad8.Profile = sketch12
pad8.Length = Q("0.118 in")
body9 = doc.addObject("PartDesign::Body", "Body008")

sketch13 = doc.addObject("Sketcher::SketchObject", "Sketch012")
body9.addObject(sketch13)
sketch13.AttachmentSupport = (doc.getObject("XY_Plane008"), [""])
sketch13.MapMode = "FlatFace"
sketch13.AttachmentOffset = App.Placement(App.Vector(0, 0, 38.5), App.Rotation())
sketch13.addGeometry(Part.LineSegment(App.Vector(97.250173, 0, 0), App.Vector(25.4, 12.830388, 0)), False)
sketch13.addGeometry(Part.LineSegment(App.Vector(25.4, 12.830388, 0), App.Vector(25.4, 0, 0)), False)
sketch13.addGeometry(Part.LineSegment(App.Vector(25.4, 0, 0), App.Vector(97.250173, 0, 0)), False)
sketch13.addGeometry(Part.LineSegment(App.Vector(28.3972, 3.79095, 0), App.Vector(28.3972, 8.302515, 0)), False)
sketch13.addGeometry(Part.ArcOfCircle(Part.Circle(App.Vector(29.19095, 8.302515, 0), App.Vector(0, 0, 1), 0.79375), math.radians(79.875328), math.radians(180)), False)
sketch13.addGeometry(Part.LineSegment(App.Vector(29.330484, 9.083904, 0), App.Vector(54.595245, 4.572339, 0)), False)
sketch13.addGeometry(Part.ArcOfCircle(Part.Circle(App.Vector(54.455711, 3.79095, 0), App.Vector(0, 0, 1), 0.79375), math.radians(-90), math.radians(79.875328)), False)
sketch13.addGeometry(Part.LineSegment(App.Vector(54.455711, 2.9972, 0), App.Vector(29.19095, 2.9972, 0)), False)
sketch13.addGeometry(Part.ArcOfCircle(Part.Circle(App.Vector(29.19095, 3.79095, 0), App.Vector(0, 0, 1), 0.79375), math.radians(180), math.radians(270)), False)
sketch13.addConstraint(Sketcher.Constraint("Coincident", 0, 2, 1, 1))
sketch13.addConstraint(Sketcher.Constraint("Coincident", 1, 2, 2, 1))
sketch13.addConstraint(Sketcher.Constraint("Coincident", 2, 2, 0, 1))
sketch13.addConstraint(Sketcher.Constraint("Coincident", 3, 2, 4, 2))
sketch13.addConstraint(Sketcher.Constraint("Coincident", 4, 1, 5, 1))
sketch13.addConstraint(Sketcher.Constraint("Coincident", 5, 2, 6, 2))
sketch13.addConstraint(Sketcher.Constraint("Coincident", 6, 1, 7, 1))
sketch13.addConstraint(Sketcher.Constraint("Coincident", 7, 2, 8, 2))
sketch13.addConstraint(Sketcher.Constraint("Coincident", 8, 1, 3, 1))
sketch13.addConstraint(Sketcher.Constraint("Vertical", 1))
sketch13.addConstraint(Sketcher.Constraint("Horizontal", 2))
sketch13.addConstraint(Sketcher.Constraint("Vertical", 3))
sketch13.addConstraint(Sketcher.Constraint("Horizontal", 7))
sketch13.addConstraint(Sketcher.Constraint("PointOnObject", 1, 2, -1))
sketch13.addConstraint(Sketcher.Constraint("DistanceX", -1, 1, 0, 2, Q("1 in")))
sketch13.addConstraint(Sketcher.Constraint("Radius", 4, Q("0.03125 in")))
sketch13.addConstraint(Sketcher.Constraint("Radius", 6, Q("0.03125 in")))
sketch13.addConstraint(Sketcher.Constraint("Radius", 8, Q("0.03125 in")))
sketch13.addConstraint(Sketcher.Constraint("DistanceX", -1, 1, 3, 2, Q("1.118 in")))
sketch13.addConstraint(Sketcher.Constraint("DistanceY", -1, 1, 6, 1, Q("0.118 in")))
sketch13.addConstraint(Sketcher.Constraint("DistanceX", 3, 2, 7, 2, Q("0.03125 in")))
sketch13.addConstraint(Sketcher.Constraint("DistanceY", 7, 2, 8, 1, Q("0.03125 in")))
sketch13.addConstraint(Sketcher.Constraint("DistanceX", 7, 2, 7, 1, 25.264761))
sketch13.addConstraint(Sketcher.Constraint("DistanceY", 1, 2, 1, 1, 12.830388))
sketch13.addConstraint(Sketcher.Constraint("Distance", 5, 25.664419))
sketch13.addConstraint(Sketcher.Constraint("DistanceX", 2, 1, 2, 2, 71.850173))
sketch13.addConstraint(Sketcher.Constraint("DistanceY", 3, 1, 3, 2, 4.511565))
sketch13.addConstraint(Sketcher.Constraint("DistanceX", -1, 1, 6, 3, 54.455711))
sketch13.addConstraint(Sketcher.Constraint("DistanceY", -1, 1, 5, 2, 4.572339))
sketch13.addConstraint(Sketcher.Constraint("DistanceY", 4, 3, 4, 1, 0.781389))
pad9 = doc.addObject("PartDesign::Pad", "Pad008")
body9.addObject(pad9)
pad9.Profile = sketch13
pad9.Length = Q("0.118 in")
pad9.Reversed = True
body10 = doc.addObject("PartDesign::Body", "Body009")
doc.recompute()

mirroring = doc.addObject("Part::Mirroring", "Mirroring")
mirroring.Source = body8
mirroring.Base = App.Vector(0, 0, 0)
mirroring.Normal = App.Vector(0, 0, 1)
body10.BaseFeature = mirroring
doc.recompute()
body11 = doc.addObject("PartDesign::Body", "Body010")
doc.recompute()

mirroring2 = doc.addObject("Part::Mirroring", "Mirroring001")
mirroring2.Source = body9
mirroring2.Base = App.Vector(0, 0, 0)
mirroring2.Normal = App.Vector(0, 0, 1)
body11.BaseFeature = mirroring2
doc.recompute()
mirroring.Visibility = False
mirroring2.Visibility = False

doc.recompute()
